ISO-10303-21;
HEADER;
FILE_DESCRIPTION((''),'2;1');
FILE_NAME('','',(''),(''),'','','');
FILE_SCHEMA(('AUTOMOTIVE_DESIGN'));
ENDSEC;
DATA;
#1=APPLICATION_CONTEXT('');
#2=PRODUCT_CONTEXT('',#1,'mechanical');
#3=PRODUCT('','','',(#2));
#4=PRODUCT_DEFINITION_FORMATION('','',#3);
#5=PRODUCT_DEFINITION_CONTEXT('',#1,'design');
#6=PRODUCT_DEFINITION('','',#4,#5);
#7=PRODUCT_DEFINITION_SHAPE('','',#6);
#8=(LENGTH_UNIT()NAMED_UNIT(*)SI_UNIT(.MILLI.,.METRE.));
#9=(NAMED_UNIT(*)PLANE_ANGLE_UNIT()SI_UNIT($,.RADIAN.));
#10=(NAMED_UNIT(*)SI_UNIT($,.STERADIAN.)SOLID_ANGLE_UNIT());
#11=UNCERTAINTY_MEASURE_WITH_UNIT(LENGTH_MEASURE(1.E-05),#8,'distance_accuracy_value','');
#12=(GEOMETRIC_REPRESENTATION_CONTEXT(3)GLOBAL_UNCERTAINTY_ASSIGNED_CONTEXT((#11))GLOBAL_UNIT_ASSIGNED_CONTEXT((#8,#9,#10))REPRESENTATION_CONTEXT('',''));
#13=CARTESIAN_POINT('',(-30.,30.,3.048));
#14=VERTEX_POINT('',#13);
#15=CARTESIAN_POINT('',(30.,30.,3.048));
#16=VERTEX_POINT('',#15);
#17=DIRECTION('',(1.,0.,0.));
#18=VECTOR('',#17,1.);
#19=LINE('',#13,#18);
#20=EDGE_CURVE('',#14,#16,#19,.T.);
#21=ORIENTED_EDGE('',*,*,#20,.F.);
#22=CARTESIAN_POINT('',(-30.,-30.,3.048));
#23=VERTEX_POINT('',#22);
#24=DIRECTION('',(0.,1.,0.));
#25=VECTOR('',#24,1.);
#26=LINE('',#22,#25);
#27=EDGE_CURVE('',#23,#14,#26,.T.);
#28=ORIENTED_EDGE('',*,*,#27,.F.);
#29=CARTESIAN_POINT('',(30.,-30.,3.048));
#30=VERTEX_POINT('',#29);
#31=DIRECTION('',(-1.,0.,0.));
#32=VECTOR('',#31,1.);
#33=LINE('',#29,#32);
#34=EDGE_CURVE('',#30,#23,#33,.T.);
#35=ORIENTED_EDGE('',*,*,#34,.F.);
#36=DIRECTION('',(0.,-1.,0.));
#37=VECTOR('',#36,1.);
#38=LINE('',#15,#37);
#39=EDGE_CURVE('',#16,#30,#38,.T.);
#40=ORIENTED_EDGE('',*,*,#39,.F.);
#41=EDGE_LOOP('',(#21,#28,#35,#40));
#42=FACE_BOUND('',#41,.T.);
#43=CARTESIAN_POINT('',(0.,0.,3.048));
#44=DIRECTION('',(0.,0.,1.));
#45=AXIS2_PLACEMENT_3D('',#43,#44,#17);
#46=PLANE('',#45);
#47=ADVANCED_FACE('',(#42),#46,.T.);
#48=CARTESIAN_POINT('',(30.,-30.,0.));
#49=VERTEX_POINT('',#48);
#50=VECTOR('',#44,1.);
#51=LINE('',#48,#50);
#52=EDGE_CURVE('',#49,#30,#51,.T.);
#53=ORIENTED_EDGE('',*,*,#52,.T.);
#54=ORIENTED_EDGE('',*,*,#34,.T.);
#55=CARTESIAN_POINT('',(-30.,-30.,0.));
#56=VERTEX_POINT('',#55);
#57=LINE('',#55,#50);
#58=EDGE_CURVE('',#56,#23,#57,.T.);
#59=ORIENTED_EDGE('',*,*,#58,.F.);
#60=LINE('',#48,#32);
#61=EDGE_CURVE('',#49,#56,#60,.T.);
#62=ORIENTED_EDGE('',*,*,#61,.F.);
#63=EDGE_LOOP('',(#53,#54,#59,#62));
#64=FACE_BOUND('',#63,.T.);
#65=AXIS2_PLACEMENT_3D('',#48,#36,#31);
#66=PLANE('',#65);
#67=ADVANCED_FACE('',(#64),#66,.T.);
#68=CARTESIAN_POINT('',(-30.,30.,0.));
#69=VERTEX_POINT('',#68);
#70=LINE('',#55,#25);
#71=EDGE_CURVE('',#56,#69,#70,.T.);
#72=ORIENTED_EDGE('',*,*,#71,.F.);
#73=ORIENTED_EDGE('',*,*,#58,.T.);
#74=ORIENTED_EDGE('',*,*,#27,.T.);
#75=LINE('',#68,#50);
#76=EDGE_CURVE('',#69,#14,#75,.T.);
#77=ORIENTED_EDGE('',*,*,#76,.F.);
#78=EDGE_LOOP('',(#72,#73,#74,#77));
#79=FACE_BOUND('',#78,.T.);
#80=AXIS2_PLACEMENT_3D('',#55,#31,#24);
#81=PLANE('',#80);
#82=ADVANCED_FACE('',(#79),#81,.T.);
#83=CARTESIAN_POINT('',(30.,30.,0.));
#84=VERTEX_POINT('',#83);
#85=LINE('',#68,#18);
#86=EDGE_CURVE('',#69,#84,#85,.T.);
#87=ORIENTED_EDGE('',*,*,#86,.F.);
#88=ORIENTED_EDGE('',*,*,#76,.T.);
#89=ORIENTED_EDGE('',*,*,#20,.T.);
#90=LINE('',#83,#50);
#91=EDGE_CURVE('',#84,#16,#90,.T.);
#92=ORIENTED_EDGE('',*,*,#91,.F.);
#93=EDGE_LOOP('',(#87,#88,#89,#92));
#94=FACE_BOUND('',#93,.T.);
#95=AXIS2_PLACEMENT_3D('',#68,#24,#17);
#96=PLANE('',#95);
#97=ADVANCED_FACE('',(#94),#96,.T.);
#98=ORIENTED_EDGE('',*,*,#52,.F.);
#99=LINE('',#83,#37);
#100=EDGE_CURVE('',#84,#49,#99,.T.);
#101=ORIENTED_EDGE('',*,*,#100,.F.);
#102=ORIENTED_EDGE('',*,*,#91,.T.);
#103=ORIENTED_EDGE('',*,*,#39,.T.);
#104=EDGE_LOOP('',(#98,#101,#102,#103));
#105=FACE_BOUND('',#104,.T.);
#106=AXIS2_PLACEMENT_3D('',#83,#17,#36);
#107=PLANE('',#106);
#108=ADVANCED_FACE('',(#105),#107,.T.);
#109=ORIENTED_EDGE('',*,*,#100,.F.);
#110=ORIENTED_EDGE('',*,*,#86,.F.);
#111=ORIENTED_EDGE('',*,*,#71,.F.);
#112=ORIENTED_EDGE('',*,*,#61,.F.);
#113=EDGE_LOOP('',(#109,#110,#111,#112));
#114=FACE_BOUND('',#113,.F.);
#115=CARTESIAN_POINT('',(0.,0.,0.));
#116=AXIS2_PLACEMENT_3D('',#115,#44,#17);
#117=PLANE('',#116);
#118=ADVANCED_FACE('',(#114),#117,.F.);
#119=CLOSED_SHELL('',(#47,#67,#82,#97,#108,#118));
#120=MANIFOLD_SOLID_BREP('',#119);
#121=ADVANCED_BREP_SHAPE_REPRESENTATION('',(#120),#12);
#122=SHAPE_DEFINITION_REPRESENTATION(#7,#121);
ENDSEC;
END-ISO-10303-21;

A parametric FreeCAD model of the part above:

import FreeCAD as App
import Part
import Sketcher
from FreeCAD import Vector
Q = App.Units.Quantity

doc = App.newDocument("Part")
body = doc.addObject("PartDesign::Body", "Body")

# Sketch on XY plane
sketch1 = body.newObject("Sketcher::SketchObject", "Sketch")
sketch1.AttachmentSupport = (doc.getObject("XY_Plane"), [""])
sketch1.MapMode = "FlatFace"
sketch1.addGeometry([
    Part.LineSegment(Vector(30, 30, 0), Vector(-30, 30, 0)),
    Part.LineSegment(Vector(-30, 30, 0), Vector(-30, -30, 0)),
    Part.LineSegment(Vector(-30, -30, 0), Vector(30, -30, 0)),
    Part.LineSegment(Vector(30, -30, 0), Vector(30, 30, 0)),
], False)
sketch1.addConstraint([
    Sketcher.Constraint("Coincident", 0, 2, 1, 1),
    Sketcher.Constraint("Coincident", 1, 2, 2, 1),
    Sketcher.Constraint("Coincident", 2, 2, 3, 1),
    Sketcher.Constraint("Coincident", 3, 2, 0, 1),
    Sketcher.Constraint("Horizontal", 0),
    Sketcher.Constraint("Vertical", 1),
    Sketcher.Constraint("Horizontal", 2),
    Sketcher.Constraint("Vertical", 3),
    Sketcher.Constraint("Symmetric", 0, 2, 2, 2, -1, 1),
    Sketcher.Constraint("Equal", 2, 1),
    Sketcher.Constraint("DistanceX", 0, 2, 0, 1, Q("2.3622 in")),
])
pad1 = body.newObject("PartDesign::Pad", "Pad")
pad1.Profile = sketch1
pad1.Length = Q("0.12 in")

doc.recompute()
